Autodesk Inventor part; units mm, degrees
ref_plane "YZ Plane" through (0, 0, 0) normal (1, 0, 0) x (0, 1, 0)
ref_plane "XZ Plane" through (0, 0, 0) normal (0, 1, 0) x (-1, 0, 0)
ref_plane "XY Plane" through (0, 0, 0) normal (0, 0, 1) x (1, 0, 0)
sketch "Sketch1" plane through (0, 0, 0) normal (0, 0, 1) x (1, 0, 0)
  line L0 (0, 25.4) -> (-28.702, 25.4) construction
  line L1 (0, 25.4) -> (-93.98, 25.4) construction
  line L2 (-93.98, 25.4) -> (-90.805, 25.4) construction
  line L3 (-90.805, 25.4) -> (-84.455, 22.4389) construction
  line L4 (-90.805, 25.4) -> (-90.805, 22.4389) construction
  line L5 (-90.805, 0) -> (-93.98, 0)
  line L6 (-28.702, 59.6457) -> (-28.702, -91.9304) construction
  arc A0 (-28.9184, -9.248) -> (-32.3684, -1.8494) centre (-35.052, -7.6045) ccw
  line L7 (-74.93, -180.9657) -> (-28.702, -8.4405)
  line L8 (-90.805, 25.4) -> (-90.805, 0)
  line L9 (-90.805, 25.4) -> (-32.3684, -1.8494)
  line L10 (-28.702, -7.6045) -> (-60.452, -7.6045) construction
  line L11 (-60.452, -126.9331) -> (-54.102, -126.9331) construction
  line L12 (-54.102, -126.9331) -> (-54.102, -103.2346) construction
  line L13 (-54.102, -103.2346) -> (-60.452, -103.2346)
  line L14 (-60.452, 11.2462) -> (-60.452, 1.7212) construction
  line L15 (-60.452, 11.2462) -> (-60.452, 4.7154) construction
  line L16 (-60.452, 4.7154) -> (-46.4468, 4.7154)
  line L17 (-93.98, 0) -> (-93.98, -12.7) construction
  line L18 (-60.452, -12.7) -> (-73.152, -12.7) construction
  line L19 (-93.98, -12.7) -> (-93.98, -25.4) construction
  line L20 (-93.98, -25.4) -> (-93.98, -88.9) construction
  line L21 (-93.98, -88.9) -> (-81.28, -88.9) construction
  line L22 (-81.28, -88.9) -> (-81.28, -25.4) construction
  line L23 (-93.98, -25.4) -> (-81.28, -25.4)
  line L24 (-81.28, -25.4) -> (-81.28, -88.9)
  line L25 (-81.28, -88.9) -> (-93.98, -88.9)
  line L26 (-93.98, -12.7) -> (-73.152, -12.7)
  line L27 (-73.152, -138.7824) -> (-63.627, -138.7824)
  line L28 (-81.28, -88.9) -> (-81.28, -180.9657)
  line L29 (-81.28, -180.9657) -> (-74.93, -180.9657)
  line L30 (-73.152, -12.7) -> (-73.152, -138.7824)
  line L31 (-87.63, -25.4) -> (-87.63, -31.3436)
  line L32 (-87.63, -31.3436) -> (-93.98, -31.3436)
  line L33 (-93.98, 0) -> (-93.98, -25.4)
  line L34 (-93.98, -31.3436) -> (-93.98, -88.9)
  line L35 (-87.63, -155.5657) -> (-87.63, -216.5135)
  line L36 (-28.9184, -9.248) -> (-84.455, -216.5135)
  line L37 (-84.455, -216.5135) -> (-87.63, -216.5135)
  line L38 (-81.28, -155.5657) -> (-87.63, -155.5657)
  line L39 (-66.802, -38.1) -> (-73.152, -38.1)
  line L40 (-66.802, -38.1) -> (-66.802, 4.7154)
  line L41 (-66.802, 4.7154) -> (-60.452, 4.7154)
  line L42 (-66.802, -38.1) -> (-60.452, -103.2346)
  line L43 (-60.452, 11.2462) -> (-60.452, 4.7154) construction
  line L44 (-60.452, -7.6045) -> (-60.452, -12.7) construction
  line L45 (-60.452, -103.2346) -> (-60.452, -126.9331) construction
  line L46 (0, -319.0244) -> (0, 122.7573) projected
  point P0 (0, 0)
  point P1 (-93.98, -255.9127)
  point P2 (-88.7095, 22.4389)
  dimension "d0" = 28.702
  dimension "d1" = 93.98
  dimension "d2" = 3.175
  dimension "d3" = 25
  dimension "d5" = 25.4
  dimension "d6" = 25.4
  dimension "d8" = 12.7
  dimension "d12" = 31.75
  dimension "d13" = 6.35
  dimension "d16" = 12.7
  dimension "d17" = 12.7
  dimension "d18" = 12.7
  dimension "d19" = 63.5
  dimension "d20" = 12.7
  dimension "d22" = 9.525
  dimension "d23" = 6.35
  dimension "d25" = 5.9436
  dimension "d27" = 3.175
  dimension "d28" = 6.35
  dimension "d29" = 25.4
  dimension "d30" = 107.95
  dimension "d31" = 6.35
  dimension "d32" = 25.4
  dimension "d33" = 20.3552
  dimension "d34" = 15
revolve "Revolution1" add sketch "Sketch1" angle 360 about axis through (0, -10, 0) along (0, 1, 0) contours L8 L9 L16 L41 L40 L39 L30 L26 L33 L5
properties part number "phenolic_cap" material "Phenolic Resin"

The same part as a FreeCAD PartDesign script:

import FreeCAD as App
import Part
import Sketcher
from FreeCAD import Vector
Q = App.Units.Quantity


def add_polygon(sketch, points):
    """Adds a closed chain of lines whose ends are joined by coincident constraints."""
    first, n = sketch.GeometryCount, len(points)
    for a, b in zip(points, points[1:] + points[:1]):
        sketch.addGeometry(Part.LineSegment(App.Vector(*a, 0), App.Vector(*b, 0)), False)
    for i in range(n):
        sketch.addConstraint(Sketcher.Constraint("Coincident", first + i, 2, first + (i + 1) % n, 1))

doc = App.newDocument("Part")
body = doc.addObject("PartDesign::Body", "Body")

sketch1 = body.newObject("Sketcher::SketchObject", "Sketch")
sketch1.AttachmentSupport = (doc.getObject("XY_Plane"), [""])
sketch1.MapMode = "FlatFace"
add_polygon(sketch1, [(-90.805, 25.4), (-90.805, 0), (-93.98, 0), (-93.98, -12.7), (-73.152, -12.7), (-73.152, -38.1), (-66.802, -38.1), (-66.802, 4.7154), (-46.446778, 4.715447)])
sketch1.addConstraint(Sketcher.Constraint("Vertical", 0))
sketch1.addConstraint(Sketcher.Constraint("Horizontal", 1))
sketch1.addConstraint(Sketcher.Constraint("Vertical", 2))
sketch1.addConstraint(Sketcher.Constraint("Horizontal", 3))
sketch1.addConstraint(Sketcher.Constraint("Vertical", 4))
sketch1.addConstraint(Sketcher.Constraint("Horizontal", 5))
sketch1.addConstraint(Sketcher.Constraint("Vertical", 6))
sketch1.addConstraint(Sketcher.Constraint("Horizontal", 7))
sketch1.addConstraint(Sketcher.Constraint("PointOnObject", 0, 2, -1))
sketch1.addConstraint(Sketcher.Constraint("Equal", 0, 4))
sketch1.addConstraint(Sketcher.Constraint("DistanceY", 0, 2, 0, 1, Q("1 in")))
sketch1.addConstraint(Sketcher.Constraint("DistanceY", 2, 2, 2, 1, Q("0.5 in")))
sketch1.addConstraint(Sketcher.Constraint("DistanceX", 5, 1, 5, 2, Q("0.25 in")))
sketch1.addConstraint(Sketcher.Constraint("DistanceX", 1, 2, -1, 1, Q("3.7 in")))
sketch1.addConstraint(Sketcher.Constraint("DistanceX", 1, 2, 1, 1, Q("0.125 in")))
sketch1.addConstraint(Sketcher.Constraint("Angle", 8, Q("155 deg")))
sketch1.addConstraint(Sketcher.Constraint("DistanceX", 3, 1, 3, 2, Q("0.82 in")))
sketch1.addConstraint(Sketcher.Constraint("DistanceX", 7, 1, 7, 2, 20.3552))
revolution = body.newObject("PartDesign::Revolution", "Revolution")
revolution.Profile = sketch1
revolution.ReferenceAxis = (sketch1, ["V_Axis"])
revolution.Angle = 360

doc.recompute()
